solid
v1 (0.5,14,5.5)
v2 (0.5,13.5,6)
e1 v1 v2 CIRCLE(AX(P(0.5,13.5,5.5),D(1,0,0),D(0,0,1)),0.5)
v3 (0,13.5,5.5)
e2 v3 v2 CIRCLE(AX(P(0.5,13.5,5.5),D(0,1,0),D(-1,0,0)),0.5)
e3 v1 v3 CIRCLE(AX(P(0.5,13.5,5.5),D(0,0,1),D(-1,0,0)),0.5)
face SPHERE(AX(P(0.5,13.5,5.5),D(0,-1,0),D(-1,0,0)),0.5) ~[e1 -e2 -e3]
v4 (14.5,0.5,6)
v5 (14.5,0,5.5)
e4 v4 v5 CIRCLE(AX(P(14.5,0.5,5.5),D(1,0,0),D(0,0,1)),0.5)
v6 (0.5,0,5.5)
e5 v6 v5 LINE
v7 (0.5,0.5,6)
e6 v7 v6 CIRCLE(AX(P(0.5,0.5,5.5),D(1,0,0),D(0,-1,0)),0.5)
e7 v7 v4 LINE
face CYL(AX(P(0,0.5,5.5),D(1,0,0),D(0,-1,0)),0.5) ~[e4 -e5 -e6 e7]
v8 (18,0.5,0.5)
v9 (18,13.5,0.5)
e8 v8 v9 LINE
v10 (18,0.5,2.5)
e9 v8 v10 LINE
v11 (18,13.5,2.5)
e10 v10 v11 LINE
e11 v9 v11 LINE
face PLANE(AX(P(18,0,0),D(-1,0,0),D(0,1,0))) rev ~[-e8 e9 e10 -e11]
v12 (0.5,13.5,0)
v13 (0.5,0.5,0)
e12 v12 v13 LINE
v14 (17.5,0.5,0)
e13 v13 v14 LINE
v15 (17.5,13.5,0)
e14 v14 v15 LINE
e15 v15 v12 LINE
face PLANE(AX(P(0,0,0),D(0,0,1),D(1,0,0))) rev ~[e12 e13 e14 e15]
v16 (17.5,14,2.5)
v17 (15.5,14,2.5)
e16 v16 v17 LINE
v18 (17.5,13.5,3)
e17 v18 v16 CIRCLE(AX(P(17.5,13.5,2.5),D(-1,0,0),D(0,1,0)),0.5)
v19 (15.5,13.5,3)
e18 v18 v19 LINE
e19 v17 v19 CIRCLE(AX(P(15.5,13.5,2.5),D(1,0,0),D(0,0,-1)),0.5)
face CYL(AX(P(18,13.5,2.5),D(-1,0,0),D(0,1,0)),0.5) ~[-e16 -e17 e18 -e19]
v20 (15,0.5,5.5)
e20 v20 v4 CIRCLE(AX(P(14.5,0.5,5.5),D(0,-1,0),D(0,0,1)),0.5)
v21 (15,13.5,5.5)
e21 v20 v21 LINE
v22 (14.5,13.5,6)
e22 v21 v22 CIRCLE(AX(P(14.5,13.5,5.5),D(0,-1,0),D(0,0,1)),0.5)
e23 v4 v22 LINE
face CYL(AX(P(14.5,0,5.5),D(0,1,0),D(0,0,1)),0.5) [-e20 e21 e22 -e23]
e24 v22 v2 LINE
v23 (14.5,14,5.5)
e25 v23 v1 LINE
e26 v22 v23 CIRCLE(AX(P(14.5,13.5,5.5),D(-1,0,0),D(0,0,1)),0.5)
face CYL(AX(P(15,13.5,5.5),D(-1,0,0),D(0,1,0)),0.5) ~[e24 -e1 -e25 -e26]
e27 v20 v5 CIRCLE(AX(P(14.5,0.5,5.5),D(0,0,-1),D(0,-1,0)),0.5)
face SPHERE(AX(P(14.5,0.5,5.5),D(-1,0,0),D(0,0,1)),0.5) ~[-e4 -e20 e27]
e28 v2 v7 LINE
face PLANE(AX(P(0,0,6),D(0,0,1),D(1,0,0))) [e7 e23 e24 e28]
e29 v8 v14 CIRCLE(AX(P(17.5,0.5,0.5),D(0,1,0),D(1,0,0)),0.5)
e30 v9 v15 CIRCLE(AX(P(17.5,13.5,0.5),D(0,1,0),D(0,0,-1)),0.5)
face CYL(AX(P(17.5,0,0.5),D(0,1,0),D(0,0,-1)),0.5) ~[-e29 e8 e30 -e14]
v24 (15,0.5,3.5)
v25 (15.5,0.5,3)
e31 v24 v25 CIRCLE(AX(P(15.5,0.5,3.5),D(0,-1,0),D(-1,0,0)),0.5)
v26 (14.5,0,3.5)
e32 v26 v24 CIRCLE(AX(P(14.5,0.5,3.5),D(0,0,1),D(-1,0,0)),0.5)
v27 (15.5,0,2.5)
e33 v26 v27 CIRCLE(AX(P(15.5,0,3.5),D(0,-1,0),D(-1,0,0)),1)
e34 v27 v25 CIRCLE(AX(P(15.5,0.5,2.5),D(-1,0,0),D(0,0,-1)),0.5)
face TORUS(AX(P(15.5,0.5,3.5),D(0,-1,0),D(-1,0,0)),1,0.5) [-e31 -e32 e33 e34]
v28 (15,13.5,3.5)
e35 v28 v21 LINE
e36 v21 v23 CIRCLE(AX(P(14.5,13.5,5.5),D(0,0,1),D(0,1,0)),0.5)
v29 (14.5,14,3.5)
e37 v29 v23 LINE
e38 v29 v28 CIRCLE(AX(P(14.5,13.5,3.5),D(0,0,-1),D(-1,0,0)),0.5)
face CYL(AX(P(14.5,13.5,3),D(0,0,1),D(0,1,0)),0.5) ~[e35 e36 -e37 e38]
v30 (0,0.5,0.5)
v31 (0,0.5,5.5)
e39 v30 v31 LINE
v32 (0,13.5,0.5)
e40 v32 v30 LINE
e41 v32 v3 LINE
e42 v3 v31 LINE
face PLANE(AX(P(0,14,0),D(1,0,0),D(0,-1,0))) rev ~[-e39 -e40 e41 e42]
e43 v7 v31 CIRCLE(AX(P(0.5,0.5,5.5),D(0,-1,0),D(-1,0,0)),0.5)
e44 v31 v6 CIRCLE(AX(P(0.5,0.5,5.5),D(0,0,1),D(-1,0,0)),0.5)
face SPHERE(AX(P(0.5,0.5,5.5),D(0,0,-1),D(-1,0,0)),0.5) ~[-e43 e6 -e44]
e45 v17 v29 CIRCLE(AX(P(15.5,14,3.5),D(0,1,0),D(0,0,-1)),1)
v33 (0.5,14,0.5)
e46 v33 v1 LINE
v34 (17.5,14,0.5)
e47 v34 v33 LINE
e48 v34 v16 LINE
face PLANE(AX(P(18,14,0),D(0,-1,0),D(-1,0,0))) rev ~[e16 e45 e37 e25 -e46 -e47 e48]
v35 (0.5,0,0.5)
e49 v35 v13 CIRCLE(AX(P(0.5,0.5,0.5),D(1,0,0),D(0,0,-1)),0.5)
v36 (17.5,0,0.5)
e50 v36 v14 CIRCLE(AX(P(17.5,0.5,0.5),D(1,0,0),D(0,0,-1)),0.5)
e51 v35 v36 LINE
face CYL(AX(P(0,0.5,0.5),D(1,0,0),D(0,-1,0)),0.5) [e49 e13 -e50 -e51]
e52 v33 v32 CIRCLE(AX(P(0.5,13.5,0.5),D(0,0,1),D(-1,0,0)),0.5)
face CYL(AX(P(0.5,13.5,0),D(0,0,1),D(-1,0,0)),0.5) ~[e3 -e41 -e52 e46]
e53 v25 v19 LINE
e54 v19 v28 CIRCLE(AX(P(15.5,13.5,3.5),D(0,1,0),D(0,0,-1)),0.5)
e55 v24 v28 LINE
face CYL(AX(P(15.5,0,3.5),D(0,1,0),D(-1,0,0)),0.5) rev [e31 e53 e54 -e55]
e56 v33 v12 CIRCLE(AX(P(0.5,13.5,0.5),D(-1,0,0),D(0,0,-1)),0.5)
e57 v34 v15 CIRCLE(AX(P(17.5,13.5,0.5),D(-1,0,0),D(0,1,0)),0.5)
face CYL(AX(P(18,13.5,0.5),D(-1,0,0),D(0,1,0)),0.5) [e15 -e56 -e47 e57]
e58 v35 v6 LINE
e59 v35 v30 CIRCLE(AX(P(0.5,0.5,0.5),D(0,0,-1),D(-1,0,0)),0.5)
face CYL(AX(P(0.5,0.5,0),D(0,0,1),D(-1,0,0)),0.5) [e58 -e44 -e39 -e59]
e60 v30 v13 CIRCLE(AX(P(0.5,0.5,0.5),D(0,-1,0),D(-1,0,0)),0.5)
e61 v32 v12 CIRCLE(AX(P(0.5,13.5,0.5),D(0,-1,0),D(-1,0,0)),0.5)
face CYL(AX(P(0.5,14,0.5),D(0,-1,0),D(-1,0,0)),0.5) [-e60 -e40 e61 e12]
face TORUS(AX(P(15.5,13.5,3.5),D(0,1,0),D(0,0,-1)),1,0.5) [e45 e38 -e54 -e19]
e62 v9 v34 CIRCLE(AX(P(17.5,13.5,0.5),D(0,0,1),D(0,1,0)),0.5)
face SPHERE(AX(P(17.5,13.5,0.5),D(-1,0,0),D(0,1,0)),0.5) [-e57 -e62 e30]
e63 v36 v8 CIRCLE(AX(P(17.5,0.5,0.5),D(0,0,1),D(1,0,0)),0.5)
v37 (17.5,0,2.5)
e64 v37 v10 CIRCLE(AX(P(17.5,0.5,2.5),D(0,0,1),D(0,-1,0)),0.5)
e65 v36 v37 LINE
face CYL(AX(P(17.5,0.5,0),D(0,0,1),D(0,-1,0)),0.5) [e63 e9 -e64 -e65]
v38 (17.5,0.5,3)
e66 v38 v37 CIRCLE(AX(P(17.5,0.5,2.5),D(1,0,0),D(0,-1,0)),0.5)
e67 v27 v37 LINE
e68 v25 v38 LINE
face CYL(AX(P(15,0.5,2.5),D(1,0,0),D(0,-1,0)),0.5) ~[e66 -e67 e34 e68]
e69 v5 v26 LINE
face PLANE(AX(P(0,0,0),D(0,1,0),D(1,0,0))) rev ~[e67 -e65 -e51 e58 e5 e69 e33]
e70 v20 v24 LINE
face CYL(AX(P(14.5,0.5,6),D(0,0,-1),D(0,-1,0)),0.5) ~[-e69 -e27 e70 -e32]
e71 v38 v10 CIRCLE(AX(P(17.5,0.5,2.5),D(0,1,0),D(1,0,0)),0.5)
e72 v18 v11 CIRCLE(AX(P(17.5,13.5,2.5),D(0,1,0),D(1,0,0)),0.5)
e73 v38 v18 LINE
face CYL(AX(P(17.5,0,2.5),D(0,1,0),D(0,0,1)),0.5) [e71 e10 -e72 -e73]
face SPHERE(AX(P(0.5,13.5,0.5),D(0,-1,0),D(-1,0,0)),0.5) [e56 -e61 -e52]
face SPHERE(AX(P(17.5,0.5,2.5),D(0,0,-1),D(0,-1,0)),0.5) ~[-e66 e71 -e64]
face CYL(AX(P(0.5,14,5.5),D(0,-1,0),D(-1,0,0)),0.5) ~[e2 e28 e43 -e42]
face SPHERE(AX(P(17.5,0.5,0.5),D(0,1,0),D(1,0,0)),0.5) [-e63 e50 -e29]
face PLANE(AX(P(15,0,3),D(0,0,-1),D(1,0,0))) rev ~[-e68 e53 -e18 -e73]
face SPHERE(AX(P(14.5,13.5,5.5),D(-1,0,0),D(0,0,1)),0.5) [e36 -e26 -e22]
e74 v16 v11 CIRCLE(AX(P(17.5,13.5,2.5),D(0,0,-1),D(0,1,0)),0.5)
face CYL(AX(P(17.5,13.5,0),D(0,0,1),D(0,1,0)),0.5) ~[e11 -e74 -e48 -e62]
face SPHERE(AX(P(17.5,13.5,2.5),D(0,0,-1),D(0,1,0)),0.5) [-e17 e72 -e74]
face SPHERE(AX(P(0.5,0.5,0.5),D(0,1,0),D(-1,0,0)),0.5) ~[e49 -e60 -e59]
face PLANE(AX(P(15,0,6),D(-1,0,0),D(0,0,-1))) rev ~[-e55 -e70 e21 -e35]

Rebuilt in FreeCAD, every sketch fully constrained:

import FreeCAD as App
import Part
import Sketcher

V = App.Vector
Q = App.Units.Quantity

doc = App.newDocument("Part")
params = doc.addObject("Spreadsheet::Sheet", "Params")
for row, (alias, value) in enumerate([
    ("sketch1_width", "18 mm"),
    ("sketch1_height", "14 mm"),
    ("pad1_length", "6 mm"),
    ("sketch2_width", "3 mm"),
    ("fillet_radius", "0.5 mm"),
], start=1):
    params.set(f"A{row}", alias)
    params.set(f"B{row}", "=" + value)
    params.setAlias(f"B{row}", alias)

body = doc.addObject("PartDesign::Body", "Body")

# Sketch on XY plane
sketch1 = doc.addObject("Sketcher::SketchObject", "Sketch")
body.addObject(sketch1)
sketch1.AttachmentSupport = (doc.XY_Plane, [""])
sketch1.MapMode = "FlatFace"
sketch1.addGeometry([
    Part.LineSegment(V(0, 14, 0), V(0, 0, 0)),
    Part.LineSegment(V(0, 0, 0), V(18, 0, 0)),
    Part.LineSegment(V(18, 0, 0), V(18, 14, 0)),
    Part.LineSegment(V(18, 14, 0), V(0, 14, 0)),
], False)
sketch1.addConstraint([
    Sketcher.Constraint("Coincident", 0, 2, 1, 1),
    Sketcher.Constraint("Coincident", 1, 2, 2, 1),
    Sketcher.Constraint("Coincident", 2, 2, 3, 1),
    Sketcher.Constraint("Coincident", 3, 2, 0, 1),
    Sketcher.Constraint("Vertical", 0),
    Sketcher.Constraint("Horizontal", 1),
    Sketcher.Constraint("Vertical", 2),
    Sketcher.Constraint("Horizontal", 3),
    Sketcher.Constraint("Coincident", 0, 2, -1, 1),
    Sketcher.Constraint("DistanceX", 1, 1, 1, 2, Q("18 mm")),
    Sketcher.Constraint("DistanceY", 0, 2, 0, 1, Q("14 mm")),
])
sketch1.setExpression("Constraints[9]", "Params.sketch1_width")
sketch1.setExpression("Constraints[10]", "Params.sketch1_height")
pad1 = doc.addObject("PartDesign::Pad", "Pad")
body.addObject(pad1)
pad1.Profile = sketch1
pad1.setExpression("Length", "Params.pad1_length")

# Sketch on XZ plane
sketch2 = doc.addObject("Sketcher::SketchObject", "Sketch001")
body.addObject(sketch2)
sketch2.AttachmentSupport = (doc.XZ_Plane, [""])
sketch2.MapMode = "FlatFace"
sketch2.addGeometry([
    Part.LineSegment(V(18, 3, 0), V(18, 6, 0)),
    Part.LineSegment(V(18, 6, 0), V(15, 6, 0)),
    Part.LineSegment(V(15, 6, 0), V(15, 3, 0)),
    Part.LineSegment(V(15, 3, 0), V(18, 3, 0)),
], False)
sketch2.addConstraint([
    Sketcher.Constraint("Coincident", 0, 2, 1, 1),
    Sketcher.Constraint("Coincident", 1, 2, 2, 1),
    Sketcher.Constraint("Coincident", 2, 2, 3, 1),
    Sketcher.Constraint("Coincident", 3, 2, 0, 1),
    Sketcher.Constraint("Vertical", 0),
    Sketcher.Constraint("Horizontal", 1),
    Sketcher.Constraint("Vertical", 2),
    Sketcher.Constraint("Horizontal", 3),
    Sketcher.Constraint("Equal", 3, 0),
    Sketcher.Constraint("DistanceX", 1, 2, 1, 1, Q("3 mm")),
    Sketcher.Constraint("DistanceY", -1, 1, 2, 2, Q("3 mm")),
    Sketcher.Constraint("DistanceX", -1, 1, 0, 2, Q("18 mm")),
])
sketch2.setExpression("Constraints[9]", "Params.sketch2_width")
pocket1 = doc.addObject("PartDesign::Pocket", "Pocket")
body.addObject(pocket1)
pocket1.Profile = sketch2
pocket1.Type = "UpToFirst"
doc.recompute()

fillet = doc.addObject("PartDesign::Fillet", "Fillet")
body.addObject(fillet)
fillet.Base = (pocket1, ["Edge1"])
fillet.UseAllEdges = True
fillet.setExpression("Radius", "Params.fillet_radius")

doc.recompute()
